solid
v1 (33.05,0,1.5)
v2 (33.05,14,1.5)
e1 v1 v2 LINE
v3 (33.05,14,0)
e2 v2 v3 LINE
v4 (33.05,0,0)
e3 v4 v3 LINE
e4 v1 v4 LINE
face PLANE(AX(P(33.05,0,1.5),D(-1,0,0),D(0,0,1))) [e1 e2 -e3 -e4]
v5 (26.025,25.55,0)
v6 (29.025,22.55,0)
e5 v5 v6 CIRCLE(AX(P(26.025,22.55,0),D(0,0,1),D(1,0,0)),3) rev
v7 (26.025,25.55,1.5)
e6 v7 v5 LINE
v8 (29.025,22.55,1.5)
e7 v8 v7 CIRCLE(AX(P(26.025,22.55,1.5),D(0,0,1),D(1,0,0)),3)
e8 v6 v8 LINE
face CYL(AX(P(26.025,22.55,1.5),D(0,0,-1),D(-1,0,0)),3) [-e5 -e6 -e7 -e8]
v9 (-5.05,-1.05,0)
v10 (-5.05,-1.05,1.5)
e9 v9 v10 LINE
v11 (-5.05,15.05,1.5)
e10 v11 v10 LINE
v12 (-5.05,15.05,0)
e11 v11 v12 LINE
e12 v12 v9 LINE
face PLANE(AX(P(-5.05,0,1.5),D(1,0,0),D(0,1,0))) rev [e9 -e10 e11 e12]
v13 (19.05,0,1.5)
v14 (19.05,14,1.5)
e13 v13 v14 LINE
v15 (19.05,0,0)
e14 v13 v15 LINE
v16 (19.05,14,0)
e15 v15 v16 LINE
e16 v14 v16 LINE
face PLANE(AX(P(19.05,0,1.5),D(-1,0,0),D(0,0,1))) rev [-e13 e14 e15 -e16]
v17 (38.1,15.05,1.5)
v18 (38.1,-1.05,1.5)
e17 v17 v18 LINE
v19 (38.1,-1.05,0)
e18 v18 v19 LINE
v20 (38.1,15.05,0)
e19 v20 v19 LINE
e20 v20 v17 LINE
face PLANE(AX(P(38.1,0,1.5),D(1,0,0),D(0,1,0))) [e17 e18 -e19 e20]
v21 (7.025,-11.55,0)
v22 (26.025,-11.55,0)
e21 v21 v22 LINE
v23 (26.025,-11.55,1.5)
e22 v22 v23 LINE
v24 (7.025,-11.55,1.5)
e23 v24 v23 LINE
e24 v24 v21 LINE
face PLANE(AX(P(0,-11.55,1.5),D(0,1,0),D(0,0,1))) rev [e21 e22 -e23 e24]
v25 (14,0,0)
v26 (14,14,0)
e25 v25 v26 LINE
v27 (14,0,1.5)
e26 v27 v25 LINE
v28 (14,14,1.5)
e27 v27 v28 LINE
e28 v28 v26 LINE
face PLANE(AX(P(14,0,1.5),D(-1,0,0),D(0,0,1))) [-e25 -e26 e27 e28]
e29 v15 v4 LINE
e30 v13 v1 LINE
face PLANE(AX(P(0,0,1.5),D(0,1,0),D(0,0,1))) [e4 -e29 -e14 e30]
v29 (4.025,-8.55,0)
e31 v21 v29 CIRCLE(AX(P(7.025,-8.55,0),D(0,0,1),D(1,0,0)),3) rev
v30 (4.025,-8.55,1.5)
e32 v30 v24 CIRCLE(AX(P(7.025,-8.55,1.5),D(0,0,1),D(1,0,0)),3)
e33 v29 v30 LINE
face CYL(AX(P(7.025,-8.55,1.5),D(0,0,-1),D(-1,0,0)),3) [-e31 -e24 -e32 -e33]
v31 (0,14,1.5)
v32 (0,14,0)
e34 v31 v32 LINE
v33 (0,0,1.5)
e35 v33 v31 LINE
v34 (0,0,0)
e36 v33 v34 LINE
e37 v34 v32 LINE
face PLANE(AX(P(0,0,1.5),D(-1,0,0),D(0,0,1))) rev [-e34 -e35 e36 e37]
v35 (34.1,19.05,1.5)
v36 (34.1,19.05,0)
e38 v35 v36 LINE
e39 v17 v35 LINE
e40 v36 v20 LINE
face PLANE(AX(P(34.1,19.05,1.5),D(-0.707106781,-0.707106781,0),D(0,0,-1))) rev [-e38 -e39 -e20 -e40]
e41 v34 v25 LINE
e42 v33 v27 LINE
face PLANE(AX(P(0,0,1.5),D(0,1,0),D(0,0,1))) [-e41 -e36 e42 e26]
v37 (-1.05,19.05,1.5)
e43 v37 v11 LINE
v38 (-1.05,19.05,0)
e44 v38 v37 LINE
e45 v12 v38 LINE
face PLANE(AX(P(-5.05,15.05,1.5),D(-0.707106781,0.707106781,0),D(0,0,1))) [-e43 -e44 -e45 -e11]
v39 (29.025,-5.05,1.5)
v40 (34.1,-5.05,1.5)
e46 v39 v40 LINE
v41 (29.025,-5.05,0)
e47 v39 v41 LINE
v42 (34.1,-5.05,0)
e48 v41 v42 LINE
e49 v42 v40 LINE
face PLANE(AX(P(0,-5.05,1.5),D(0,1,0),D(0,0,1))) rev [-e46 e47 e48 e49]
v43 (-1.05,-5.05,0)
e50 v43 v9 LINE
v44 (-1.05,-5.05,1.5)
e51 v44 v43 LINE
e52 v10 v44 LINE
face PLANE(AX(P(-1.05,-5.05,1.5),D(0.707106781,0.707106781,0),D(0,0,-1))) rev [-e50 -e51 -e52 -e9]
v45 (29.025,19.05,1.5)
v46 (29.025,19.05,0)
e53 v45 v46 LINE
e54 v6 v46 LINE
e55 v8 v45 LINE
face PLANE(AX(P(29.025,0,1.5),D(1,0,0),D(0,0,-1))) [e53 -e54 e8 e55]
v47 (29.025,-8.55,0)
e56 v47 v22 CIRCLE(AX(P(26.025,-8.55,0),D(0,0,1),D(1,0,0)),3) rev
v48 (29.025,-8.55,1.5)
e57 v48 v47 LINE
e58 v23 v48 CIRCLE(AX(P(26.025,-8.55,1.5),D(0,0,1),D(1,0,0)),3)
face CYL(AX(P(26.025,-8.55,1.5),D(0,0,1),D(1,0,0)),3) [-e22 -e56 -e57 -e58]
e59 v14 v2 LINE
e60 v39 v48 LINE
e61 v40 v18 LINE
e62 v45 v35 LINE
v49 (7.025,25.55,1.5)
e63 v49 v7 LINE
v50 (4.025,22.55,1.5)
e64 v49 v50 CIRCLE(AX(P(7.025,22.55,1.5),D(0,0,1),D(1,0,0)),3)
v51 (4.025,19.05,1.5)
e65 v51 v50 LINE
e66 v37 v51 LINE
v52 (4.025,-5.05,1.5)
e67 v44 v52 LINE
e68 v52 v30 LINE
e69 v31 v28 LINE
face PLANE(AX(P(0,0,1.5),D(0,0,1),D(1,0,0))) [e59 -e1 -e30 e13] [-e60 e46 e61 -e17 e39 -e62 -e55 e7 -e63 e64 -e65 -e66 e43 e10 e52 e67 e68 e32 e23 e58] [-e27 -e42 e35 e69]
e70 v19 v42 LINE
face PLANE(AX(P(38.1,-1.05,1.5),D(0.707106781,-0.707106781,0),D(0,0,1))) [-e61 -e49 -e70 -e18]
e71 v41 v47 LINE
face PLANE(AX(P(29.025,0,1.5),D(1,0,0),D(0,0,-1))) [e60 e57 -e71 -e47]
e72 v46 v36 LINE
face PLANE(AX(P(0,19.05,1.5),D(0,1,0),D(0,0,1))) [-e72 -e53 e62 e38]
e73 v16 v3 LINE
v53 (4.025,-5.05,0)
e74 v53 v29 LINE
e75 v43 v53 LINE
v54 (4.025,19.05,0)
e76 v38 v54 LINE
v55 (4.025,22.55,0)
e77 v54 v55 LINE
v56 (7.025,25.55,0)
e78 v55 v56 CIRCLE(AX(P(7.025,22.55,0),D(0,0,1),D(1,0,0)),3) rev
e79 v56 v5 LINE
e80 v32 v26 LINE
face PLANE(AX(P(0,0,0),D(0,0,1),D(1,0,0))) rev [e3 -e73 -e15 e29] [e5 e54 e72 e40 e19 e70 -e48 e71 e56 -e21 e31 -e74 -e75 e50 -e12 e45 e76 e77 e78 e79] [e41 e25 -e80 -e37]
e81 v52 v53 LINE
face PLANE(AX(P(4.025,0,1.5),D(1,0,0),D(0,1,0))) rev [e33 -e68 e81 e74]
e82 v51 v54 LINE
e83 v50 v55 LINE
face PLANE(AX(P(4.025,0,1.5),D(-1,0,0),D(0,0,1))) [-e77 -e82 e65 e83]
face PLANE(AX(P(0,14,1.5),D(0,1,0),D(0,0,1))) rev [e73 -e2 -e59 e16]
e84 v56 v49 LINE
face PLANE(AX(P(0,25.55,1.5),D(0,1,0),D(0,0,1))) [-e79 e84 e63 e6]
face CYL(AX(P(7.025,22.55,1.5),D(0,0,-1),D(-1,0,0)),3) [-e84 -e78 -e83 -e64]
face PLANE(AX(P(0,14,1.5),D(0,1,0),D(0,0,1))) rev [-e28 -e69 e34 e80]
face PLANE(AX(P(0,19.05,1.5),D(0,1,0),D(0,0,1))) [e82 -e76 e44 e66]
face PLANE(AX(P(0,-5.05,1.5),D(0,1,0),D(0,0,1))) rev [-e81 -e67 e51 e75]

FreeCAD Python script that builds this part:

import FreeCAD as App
import Part
import Sketcher


def edges_at(feature, points):
    """Names of the edges that pass closest to the given points."""
    edges = feature.Shape.Edges
    near = lambda p: min(range(len(edges)), key=lambda i: edges[i].distToShape(Part.Vertex(*p))[0])
    return sorted({f"Edge{near(p) + 1}" for p in points})

doc = App.newDocument("Part")
params = doc.addObject("Spreadsheet::Sheet", "Params")
for row, (alias, value) in enumerate([
    ("sketch1_width", "25 mm"),
    ("sketch1_width2", "14 mm"),
    ("sketch1_height", "6.5 mm"),
    ("sketch1_height2", "24.1 mm"),
    ("pad1_length", "1.5 mm"),
    ("fillet_radius", "3 mm"),
    ("chamfer_size", "4 mm"),
], start=1):
    params.set(f"A{row}", alias)
    params.set(f"B{row}", "=" + value)
    params.setAlias(f"B{row}", alias)

body = doc.addObject("PartDesign::Body", "Body")

# Sketch on XY plane
sketch1 = doc.addObject("Sketcher::SketchObject", "Sketch")
body.addObject(sketch1)
sketch1.AttachmentSupport = (doc.XY_Plane, [""])
sketch1.MapMode = "FlatFace"
sketch1.addGeometry(Part.LineSegment(App.Vector(4, 26, 0), App.Vector(4, 19, 0)), False)
sketch1.addGeometry(Part.LineSegment(App.Vector(4, 19, 0), App.Vector(-5, 19, 0)), False)
sketch1.addGeometry(Part.LineSegment(App.Vector(-5, 19, 0), App.Vector(-5, -5, 0)), False)
sketch1.addGeometry(Part.LineSegment(App.Vector(-5, -5, 0), App.Vector(4, -5, 0)), False)
sketch1.addGeometry(Part.LineSegment(App.Vector(4, -5, 0), App.Vector(4, -12, 0)), False)
sketch1.addGeometry(Part.LineSegment(App.Vector(4, -12, 0), App.Vector(29, -12, 0)), False)
sketch1.addGeometry(Part.LineSegment(App.Vector(29, -12, 0), App.Vector(29, -5, 0)), False)
sketch1.addGeometry(Part.LineSegment(App.Vector(29, -5, 0), App.Vector(38, -5, 0)), False)
sketch1.addGeometry(Part.LineSegment(App.Vector(38, -5, 0), App.Vector(38, 19, 0)), False)
sketch1.addGeometry(Part.LineSegment(App.Vector(38, 19, 0), App.Vector(29, 19, 0)), False)
sketch1.addGeometry(Part.LineSegment(App.Vector(29, 19, 0), App.Vector(29, 26, 0)), False)
sketch1.addGeometry(Part.LineSegment(App.Vector(29, 26, 0), App.Vector(4, 26, 0)), False)
sketch1.addGeometry(Part.LineSegment(App.Vector(19, 14, 0), App.Vector(33, 14, 0)), False)
sketch1.addGeometry(Part.LineSegment(App.Vector(33, 14, 0), App.Vector(33, 0, 0)), False)
sketch1.addGeometry(Part.LineSegment(App.Vector(33, 0, 0), App.Vector(19, 0, 0)), False)
sketch1.addGeometry(Part.LineSegment(App.Vector(19, 0, 0), App.Vector(19, 14, 0)), False)
sketch1.addGeometry(Part.LineSegment(App.Vector(14, 0, 0), App.Vector(0, 0, 0)), False)
sketch1.addGeometry(Part.LineSegment(App.Vector(0, 0, 0), App.Vector(0, 14, 0)), False)
sketch1.addGeometry(Part.LineSegment(App.Vector(0, 14, 0), App.Vector(14, 14, 0)), False)
sketch1.addGeometry(Part.LineSegment(App.Vector(14, 14, 0), App.Vector(14, 0, 0)), False)
sketch1.addConstraint(Sketcher.Constraint("Coincident", 0, 2, 1, 1))
sketch1.addConstraint(Sketcher.Constraint("Coincident", 1, 2, 2, 1))
sketch1.addConstraint(Sketcher.Constraint("Coincident", 2, 2, 3, 1))
sketch1.addConstraint(Sketcher.Constraint("Coincident", 3, 2, 4, 1))
sketch1.addConstraint(Sketcher.Constraint("Coincident", 4, 2, 5, 1))
sketch1.addConstraint(Sketcher.Constraint("Coincident", 5, 2, 6, 1))
sketch1.addConstraint(Sketcher.Constraint("Coincident", 6, 2, 7, 1))
sketch1.addConstraint(Sketcher.Constraint("Coincident", 7, 2, 8, 1))
sketch1.addConstraint(Sketcher.Constraint("Coincident", 8, 2, 9, 1))
sketch1.addConstraint(Sketcher.Constraint("Coincident", 9, 2, 10, 1))
sketch1.addConstraint(Sketcher.Constraint("Coincident", 10, 2, 11, 1))
sketch1.addConstraint(Sketcher.Constraint("Coincident", 11, 2, 0, 1))
sketch1.addConstraint(Sketcher.Constraint("Coincident", 12, 2, 13, 1))
sketch1.addConstraint(Sketcher.Constraint("Coincident", 13, 2, 14, 1))
sketch1.addConstraint(Sketcher.Constraint("Coincident", 14, 2, 15, 1))
sketch1.addConstraint(Sketcher.Constraint("Coincident", 15, 2, 12, 1))
sketch1.addConstraint(Sketcher.Constraint("Coincident", 16, 2, 17, 1))
sketch1.addConstraint(Sketcher.Constraint("Coincident", 17, 2, 18, 1))
sketch1.addConstraint(Sketcher.Constraint("Coincident", 18, 2, 19, 1))
sketch1.addConstraint(Sketcher.Constraint("Coincident", 19, 2, 16, 1))
sketch1.addConstraint(Sketcher.Constraint("Vertical", 0))
sketch1.addConstraint(Sketcher.Constraint("Horizontal", 1))
sketch1.addConstraint(Sketcher.Constraint("Vertical", 2))
sketch1.addConstraint(Sketcher.Constraint("Horizontal", 3))
sketch1.addConstraint(Sketcher.Constraint("Vertical", 4))
sketch1.addConstraint(Sketcher.Constraint("Horizontal", 5))
sketch1.addConstraint(Sketcher.Constraint("Vertical", 6))
sketch1.addConstraint(Sketcher.Constraint("Horizontal", 7))
sketch1.addConstraint(Sketcher.Constraint("Vertical", 8))
sketch1.addConstraint(Sketcher.Constraint("Horizontal", 9))
sketch1.addConstraint(Sketcher.Constraint("Vertical", 10))
sketch1.addConstraint(Sketcher.Constraint("Horizontal", 11))
sketch1.addConstraint(Sketcher.Constraint("Horizontal", 12))
sketch1.addConstraint(Sketcher.Constraint("Vertical", 13))
sketch1.addConstraint(Sketcher.Constraint("Horizontal", 14))
sketch1.addConstraint(Sketcher.Constraint("Vertical", 15))
sketch1.addConstraint(Sketcher.Constraint("Horizontal", 16))
sketch1.addConstraint(Sketcher.Constraint("Vertical", 17))
sketch1.addConstraint(Sketcher.Constraint("Horizontal", 18))
sketch1.addConstraint(Sketcher.Constraint("Vertical", 19))
sketch1.addConstraint(Sketcher.Constraint("Coincident", 16, 2, -1, 1))
sketch1.addConstraint(Sketcher.Constraint("PointOnObject", 13, 2, -1))
sketch1.addConstraint(Sketcher.Constraint("Horizontal", 3, 2, 6, 2))
sketch1.addConstraint(Sketcher.Constraint("Horizontal", 1, 2, 8, 2))
sketch1.addConstraint(Sketcher.Constraint("Horizontal", 15, 2, 17, 2))
sketch1.addConstraint(Sketcher.Constraint("Vertical", 0, 2, 3, 2))
sketch1.addConstraint(Sketcher.Constraint("Vertical", 6, 2, 9, 2))
sketch1.addConstraint(Sketcher.Constraint("Equal", 3, 7))
sketch1.addConstraint(Sketcher.Constraint("Equal", 14, 16))
sketch1.addConstraint(Sketcher.Constraint("Equal", 0, 4))
sketch1.addConstraint(Sketcher.Constraint("Equal", 18, 13))
sketch1.addConstraint(Sketcher.Constraint("DistanceX", 5, 1, 5, 2, 25.0))
sketch1.addConstraint(Sketcher.Constraint("DistanceX", 12, 1, 12, 2, 14.0))
sketch1.addConstraint(Sketcher.Constraint("DistanceY", 0, 2, 0, 1, 6.5))
sketch1.addConstraint(Sketcher.Constraint("DistanceY", 2, 2, 2, 1, 24.1))
sketch1.addConstraint(Sketcher.Constraint("DistanceX", -1, 1, 7, 2, 38.1))
sketch1.addConstraint(Sketcher.Constraint("DistanceX", 1, 2, 1, 1, 9.075))
sketch1.addConstraint(Sketcher.Constraint("DistanceY", -1, 1, 0, 2, 19.05))
sketch1.addConstraint(Sketcher.Constraint("DistanceX", -1, 1, 12, 2, 33.05))
sketch1.setExpression("Constraints[51]", "Params.sketch1_width")
sketch1.setExpression("Constraints[52]", "Params.sketch1_width2")
sketch1.setExpression("Constraints[53]", "Params.sketch1_height")
sketch1.setExpression("Constraints[54]", "Params.sketch1_height2")
pad1 = doc.addObject("PartDesign::Pad", "Pad")
body.addObject(pad1)
pad1.Profile = sketch1
pad1.setExpression("Length", "Params.pad1_length")
doc.recompute()

fillet = doc.addObject("PartDesign::Fillet", "Fillet")
body.addObject(fillet)
fillet.Base = (pad1, edges_at(pad1, [
    (29.025, -11.55, 0.75),
    (4.025, -11.55, 0.75),
    (4.025, 25.55, 0.75),
    (29.025, 25.55, 0.75),
]))
fillet.setExpression("Radius", "Params.fillet_radius")
doc.recompute()

chamfer = doc.addObject("PartDesign::Chamfer", "Chamfer")
body.addObject(chamfer)
chamfer.Base = (fillet, edges_at(fillet, [
    (38.1, 19.05, 0.75),
    (38.1, -5.05, 0.75),
    (-5.05, -5.05, 0.75),
    (-5.05, 19.05, 0.75),
]))
chamfer.setExpression("Size", "Params.chamfer_size")

doc.recompute()
